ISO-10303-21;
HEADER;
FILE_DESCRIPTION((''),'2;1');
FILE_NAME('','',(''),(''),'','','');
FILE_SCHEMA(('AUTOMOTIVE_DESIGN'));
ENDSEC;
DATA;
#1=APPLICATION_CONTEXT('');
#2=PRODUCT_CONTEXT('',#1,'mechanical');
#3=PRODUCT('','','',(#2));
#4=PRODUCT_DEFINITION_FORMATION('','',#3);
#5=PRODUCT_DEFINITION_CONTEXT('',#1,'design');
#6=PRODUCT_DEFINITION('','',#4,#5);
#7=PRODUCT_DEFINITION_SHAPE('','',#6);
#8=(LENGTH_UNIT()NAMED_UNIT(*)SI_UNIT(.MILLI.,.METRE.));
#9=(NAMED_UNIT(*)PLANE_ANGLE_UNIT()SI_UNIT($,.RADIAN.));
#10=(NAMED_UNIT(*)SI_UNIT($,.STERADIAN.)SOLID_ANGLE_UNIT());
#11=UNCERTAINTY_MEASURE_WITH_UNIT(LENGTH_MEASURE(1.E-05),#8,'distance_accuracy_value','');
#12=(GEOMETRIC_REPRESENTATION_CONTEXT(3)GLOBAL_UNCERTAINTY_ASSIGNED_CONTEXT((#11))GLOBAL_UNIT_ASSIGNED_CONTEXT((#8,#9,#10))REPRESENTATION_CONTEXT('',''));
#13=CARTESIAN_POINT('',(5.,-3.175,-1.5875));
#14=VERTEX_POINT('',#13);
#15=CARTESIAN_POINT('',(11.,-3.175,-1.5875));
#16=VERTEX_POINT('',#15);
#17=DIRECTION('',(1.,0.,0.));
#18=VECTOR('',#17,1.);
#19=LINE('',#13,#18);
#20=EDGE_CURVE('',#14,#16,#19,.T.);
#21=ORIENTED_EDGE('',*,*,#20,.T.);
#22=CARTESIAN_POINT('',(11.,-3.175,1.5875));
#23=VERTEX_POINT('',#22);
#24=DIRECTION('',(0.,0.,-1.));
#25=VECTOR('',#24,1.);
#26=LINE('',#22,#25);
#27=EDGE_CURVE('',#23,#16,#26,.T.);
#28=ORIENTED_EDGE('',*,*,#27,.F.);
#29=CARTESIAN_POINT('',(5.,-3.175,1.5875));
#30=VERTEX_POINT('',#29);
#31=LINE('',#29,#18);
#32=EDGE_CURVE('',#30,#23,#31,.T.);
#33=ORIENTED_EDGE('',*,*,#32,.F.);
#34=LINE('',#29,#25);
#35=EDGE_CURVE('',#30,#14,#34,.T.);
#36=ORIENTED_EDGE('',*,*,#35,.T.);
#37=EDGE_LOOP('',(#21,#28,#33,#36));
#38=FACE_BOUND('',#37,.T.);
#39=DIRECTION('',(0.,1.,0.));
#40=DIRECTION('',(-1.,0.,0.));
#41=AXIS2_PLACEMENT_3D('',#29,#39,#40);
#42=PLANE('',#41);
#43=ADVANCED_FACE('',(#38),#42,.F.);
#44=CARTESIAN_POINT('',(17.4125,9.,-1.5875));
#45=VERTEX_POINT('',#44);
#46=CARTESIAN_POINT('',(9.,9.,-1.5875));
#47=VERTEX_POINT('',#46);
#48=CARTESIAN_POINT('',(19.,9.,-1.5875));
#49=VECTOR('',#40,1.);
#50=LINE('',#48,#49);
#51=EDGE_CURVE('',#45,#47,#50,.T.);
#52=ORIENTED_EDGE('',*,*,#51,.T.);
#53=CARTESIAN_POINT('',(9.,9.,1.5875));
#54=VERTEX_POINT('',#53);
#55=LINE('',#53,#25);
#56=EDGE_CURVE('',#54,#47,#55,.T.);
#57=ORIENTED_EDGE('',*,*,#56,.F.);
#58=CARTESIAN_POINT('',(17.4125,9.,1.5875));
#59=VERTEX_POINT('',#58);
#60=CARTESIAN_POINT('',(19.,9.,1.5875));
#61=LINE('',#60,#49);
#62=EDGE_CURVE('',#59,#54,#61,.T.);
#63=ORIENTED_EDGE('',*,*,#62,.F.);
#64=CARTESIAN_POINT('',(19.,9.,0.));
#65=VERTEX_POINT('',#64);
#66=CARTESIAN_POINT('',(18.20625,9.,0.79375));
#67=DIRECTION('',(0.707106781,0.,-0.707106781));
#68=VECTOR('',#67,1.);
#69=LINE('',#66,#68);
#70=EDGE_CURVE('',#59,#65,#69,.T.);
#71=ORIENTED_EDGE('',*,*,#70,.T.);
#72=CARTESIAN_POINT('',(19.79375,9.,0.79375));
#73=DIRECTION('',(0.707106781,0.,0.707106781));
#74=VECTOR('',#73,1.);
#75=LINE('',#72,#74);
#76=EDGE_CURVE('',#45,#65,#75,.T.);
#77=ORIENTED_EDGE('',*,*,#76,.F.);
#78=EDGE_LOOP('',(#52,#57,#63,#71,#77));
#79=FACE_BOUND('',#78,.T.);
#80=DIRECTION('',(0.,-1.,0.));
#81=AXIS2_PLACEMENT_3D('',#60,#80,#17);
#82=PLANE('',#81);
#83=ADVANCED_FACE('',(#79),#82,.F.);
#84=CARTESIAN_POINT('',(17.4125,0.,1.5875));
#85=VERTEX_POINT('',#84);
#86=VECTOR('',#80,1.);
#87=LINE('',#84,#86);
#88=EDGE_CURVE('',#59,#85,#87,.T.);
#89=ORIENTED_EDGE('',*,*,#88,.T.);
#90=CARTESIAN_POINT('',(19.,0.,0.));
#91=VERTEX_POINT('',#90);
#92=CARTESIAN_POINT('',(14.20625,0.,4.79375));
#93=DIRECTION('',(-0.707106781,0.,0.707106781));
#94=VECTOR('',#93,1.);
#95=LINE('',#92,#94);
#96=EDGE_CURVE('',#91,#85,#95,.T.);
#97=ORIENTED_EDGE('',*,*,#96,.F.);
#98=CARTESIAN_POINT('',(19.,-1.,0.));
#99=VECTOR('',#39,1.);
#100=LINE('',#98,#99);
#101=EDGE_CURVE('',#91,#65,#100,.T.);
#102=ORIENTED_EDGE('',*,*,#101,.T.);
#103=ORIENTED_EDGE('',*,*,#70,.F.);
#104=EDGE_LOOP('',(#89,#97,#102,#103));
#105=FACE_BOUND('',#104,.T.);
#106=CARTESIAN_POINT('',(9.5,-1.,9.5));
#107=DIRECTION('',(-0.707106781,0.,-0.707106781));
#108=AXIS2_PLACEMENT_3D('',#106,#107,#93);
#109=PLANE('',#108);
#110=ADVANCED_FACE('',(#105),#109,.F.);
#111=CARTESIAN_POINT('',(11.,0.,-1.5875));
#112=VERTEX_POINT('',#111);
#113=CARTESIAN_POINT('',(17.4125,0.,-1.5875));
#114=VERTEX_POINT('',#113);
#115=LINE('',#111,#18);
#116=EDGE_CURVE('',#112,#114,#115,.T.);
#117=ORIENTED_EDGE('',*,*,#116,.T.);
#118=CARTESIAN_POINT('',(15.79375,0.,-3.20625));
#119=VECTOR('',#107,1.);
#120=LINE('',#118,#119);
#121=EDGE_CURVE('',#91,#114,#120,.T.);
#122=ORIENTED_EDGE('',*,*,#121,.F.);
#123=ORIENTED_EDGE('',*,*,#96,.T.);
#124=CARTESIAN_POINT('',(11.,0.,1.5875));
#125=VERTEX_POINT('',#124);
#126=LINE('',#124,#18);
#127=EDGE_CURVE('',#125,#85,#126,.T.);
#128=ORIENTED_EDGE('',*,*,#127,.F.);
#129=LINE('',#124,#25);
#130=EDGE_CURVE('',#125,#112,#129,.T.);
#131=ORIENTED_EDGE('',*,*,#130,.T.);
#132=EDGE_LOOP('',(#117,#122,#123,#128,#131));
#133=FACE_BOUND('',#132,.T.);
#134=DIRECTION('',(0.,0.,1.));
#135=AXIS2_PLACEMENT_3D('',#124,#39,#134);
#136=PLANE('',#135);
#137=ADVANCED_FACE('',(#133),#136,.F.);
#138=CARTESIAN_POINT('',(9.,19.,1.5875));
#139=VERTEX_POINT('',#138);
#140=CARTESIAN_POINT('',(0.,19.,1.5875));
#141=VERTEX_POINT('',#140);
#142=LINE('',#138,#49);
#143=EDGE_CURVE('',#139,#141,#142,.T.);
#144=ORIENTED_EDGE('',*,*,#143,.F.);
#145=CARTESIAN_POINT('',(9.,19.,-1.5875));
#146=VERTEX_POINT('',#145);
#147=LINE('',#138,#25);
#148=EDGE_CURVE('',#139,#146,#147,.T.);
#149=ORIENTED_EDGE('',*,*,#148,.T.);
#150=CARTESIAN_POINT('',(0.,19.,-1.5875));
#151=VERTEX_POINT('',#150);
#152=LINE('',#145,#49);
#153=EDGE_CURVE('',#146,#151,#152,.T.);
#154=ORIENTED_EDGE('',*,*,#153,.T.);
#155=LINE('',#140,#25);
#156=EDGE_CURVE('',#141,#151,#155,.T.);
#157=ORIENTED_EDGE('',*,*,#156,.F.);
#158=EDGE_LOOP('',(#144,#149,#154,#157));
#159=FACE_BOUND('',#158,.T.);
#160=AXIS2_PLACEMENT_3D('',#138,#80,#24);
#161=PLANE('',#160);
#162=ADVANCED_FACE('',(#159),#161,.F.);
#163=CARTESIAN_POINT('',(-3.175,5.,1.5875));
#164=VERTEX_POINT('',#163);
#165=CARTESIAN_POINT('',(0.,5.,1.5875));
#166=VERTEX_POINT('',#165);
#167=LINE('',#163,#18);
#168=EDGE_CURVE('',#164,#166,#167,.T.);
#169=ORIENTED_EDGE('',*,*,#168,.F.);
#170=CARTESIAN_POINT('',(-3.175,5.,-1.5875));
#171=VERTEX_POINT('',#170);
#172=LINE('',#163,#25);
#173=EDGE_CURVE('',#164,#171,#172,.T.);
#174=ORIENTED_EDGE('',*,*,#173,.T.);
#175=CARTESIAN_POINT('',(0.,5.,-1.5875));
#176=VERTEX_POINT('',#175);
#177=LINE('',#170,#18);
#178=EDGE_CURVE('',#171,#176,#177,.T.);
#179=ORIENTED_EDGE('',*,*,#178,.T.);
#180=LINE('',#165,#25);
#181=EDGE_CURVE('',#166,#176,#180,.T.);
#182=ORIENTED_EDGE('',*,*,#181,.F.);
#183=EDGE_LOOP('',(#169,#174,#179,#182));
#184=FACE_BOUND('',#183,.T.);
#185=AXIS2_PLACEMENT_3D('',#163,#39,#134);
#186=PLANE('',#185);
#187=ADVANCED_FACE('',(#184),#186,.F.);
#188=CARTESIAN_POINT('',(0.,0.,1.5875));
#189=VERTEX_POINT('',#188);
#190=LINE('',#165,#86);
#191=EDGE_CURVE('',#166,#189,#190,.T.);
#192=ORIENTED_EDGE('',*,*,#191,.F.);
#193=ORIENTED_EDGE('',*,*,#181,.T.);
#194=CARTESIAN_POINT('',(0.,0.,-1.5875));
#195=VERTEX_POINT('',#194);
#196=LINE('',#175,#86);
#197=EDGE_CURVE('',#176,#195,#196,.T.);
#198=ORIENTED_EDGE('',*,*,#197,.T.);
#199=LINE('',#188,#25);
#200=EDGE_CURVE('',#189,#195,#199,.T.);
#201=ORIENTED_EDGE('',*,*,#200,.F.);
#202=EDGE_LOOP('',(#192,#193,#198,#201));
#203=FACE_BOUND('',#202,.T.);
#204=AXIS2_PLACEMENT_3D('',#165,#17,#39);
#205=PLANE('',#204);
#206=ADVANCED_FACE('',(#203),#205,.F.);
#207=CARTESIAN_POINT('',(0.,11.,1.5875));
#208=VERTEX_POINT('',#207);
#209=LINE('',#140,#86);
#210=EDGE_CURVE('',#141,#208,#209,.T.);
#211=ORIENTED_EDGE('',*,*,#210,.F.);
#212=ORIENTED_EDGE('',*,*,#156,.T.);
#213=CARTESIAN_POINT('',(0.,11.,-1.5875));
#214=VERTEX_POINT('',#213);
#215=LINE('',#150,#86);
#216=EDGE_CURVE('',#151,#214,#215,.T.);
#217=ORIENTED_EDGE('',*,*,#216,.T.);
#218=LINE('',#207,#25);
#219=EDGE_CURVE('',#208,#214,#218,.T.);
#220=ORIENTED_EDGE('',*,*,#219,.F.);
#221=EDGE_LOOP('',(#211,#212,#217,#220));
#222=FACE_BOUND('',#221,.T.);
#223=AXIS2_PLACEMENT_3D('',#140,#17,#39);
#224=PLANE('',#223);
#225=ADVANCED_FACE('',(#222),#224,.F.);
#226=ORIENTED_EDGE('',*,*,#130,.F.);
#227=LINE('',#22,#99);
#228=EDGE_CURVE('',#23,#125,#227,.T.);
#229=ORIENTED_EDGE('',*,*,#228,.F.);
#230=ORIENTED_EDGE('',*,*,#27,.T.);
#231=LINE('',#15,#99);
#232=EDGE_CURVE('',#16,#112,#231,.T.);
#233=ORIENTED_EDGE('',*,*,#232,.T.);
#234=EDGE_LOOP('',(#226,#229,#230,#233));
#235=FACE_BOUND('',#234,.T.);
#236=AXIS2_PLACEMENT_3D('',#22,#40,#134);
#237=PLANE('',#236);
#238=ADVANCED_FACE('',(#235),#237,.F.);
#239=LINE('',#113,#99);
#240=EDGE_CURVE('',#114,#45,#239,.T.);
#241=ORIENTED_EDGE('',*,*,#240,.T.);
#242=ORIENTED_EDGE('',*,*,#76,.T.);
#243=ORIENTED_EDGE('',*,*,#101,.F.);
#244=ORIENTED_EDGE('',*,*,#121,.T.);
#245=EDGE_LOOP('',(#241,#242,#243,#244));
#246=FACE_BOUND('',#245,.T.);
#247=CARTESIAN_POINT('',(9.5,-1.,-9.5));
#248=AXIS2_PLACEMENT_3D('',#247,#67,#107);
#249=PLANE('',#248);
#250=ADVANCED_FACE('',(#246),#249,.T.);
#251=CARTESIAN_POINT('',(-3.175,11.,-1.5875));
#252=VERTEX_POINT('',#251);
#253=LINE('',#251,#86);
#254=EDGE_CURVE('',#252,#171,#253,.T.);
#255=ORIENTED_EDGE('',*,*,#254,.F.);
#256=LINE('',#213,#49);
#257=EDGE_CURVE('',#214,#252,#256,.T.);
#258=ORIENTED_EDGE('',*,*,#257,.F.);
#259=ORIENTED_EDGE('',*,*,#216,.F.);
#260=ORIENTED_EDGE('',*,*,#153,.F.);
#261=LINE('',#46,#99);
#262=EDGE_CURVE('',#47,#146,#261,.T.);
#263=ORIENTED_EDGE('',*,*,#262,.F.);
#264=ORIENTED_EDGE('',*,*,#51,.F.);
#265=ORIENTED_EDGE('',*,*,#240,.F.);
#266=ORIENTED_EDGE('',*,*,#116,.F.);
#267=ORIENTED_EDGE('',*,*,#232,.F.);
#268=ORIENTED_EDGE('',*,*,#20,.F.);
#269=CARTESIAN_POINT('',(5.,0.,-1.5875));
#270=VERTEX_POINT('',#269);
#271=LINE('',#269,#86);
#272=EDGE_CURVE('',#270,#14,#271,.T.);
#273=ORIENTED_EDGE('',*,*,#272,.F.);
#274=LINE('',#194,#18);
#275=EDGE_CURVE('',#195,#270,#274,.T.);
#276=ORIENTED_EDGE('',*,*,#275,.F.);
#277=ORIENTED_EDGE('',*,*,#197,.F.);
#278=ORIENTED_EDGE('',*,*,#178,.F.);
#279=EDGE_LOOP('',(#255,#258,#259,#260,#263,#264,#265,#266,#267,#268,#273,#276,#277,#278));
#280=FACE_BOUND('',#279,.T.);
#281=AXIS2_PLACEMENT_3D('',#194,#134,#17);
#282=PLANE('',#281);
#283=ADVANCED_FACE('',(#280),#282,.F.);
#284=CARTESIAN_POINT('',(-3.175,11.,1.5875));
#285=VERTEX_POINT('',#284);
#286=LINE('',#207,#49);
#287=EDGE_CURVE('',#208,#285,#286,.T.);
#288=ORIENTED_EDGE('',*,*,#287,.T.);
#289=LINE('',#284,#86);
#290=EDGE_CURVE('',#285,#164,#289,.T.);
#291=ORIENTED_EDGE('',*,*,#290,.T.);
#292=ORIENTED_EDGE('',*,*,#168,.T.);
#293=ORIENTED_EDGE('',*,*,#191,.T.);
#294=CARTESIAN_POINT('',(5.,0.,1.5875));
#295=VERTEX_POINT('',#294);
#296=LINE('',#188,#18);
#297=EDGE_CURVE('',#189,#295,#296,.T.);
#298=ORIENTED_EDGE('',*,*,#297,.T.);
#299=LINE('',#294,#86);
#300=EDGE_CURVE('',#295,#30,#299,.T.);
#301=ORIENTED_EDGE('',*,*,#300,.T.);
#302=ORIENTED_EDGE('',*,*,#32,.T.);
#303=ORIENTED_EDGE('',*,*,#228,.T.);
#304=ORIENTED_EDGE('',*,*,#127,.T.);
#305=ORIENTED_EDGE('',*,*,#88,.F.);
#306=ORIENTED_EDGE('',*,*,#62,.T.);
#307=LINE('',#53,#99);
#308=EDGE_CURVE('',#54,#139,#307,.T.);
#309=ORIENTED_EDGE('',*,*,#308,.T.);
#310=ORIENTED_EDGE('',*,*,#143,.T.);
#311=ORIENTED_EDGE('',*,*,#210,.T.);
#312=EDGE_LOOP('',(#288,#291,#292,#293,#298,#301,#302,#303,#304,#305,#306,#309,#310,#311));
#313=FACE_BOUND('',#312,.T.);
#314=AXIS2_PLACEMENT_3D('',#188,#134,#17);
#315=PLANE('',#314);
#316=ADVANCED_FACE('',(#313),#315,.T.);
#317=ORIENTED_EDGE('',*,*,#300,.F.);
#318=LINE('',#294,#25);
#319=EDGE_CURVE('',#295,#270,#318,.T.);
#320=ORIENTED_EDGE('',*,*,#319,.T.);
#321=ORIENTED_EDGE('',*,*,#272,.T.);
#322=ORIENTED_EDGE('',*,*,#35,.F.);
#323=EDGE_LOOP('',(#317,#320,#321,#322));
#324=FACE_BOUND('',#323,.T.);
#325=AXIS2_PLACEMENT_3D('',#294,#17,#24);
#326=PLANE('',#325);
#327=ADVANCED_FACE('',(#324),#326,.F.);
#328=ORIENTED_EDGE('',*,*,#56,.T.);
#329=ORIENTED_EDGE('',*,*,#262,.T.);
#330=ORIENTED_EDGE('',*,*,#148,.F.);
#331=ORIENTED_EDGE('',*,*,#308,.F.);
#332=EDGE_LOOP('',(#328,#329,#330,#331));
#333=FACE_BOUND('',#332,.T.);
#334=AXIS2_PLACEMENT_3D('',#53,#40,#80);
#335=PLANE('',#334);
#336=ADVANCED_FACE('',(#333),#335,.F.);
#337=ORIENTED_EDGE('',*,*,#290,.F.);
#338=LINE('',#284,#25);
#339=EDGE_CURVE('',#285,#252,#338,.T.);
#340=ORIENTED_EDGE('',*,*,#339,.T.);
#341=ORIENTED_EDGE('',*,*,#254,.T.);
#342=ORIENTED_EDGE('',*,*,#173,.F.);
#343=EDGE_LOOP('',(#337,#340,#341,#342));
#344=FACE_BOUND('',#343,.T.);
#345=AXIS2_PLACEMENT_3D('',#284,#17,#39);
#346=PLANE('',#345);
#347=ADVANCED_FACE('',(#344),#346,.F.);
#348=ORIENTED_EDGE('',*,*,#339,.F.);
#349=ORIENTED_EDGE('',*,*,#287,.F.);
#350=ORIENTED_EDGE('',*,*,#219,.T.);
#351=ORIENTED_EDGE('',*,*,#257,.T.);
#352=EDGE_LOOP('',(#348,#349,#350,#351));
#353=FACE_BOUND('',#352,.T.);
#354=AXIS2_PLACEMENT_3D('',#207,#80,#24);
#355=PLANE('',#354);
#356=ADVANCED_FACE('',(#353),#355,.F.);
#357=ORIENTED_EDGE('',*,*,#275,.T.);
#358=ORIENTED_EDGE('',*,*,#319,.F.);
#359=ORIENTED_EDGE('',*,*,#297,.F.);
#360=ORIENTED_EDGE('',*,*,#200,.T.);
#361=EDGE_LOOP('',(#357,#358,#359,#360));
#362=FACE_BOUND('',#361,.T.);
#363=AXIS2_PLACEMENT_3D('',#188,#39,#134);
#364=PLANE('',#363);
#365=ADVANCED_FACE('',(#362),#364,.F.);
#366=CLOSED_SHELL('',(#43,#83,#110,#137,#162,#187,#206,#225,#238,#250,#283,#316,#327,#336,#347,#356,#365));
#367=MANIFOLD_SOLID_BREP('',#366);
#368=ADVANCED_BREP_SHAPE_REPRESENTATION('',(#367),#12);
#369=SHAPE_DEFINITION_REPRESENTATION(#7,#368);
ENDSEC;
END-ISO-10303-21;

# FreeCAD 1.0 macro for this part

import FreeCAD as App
import Part
import Sketcher
from FreeCAD import Vector

doc = App.newDocument("Part")
body = doc.addObject("PartDesign::Body", "Body")

sketch1 = body.newObject("Sketcher::SketchObject", "Sketch")
sketch1.AttachmentSupport = (doc.getObject("XY_Plane"), [""])
sketch1.MapMode = "FlatFace"
sketch1.addGeometry(Part.LineSegment(Vector(0, 0, 0), Vector(5, 0, 0)), False)
sketch1.addGeometry(Part.LineSegment(Vector(5, 0, 0), Vector(5, -3.175, 0)), False)
sketch1.addGeometry(Part.LineSegment(Vector(5, -3.175, 0), Vector(11, -3.175, 0)), False)
sketch1.addGeometry(Part.LineSegment(Vector(11, -3.175, 0), Vector(11, 0, 0)), False)
sketch1.addGeometry(Part.LineSegment(Vector(11, 0, 0), Vector(19, 0, 0)), False)
sketch1.addGeometry(Part.LineSegment(Vector(19, 0, 0), Vector(19, 9, 0)), False)
sketch1.addGeometry(Part.LineSegment(Vector(19, 9, 0), Vector(9, 9, 0)), False)
sketch1.addGeometry(Part.LineSegment(Vector(9, 9, 0), Vector(9, 19, 0)), False)
sketch1.addGeometry(Part.LineSegment(Vector(9, 19, 0), Vector(0, 19, 0)), False)
sketch1.addGeometry(Part.LineSegment(Vector(0, 19, 0), Vector(0, 11, 0)), False)
sketch1.addGeometry(Part.LineSegment(Vector(0, 11, 0), Vector(-3.175, 11, 0)), False)
sketch1.addGeometry(Part.LineSegment(Vector(-3.175, 11, 0), Vector(-3.175, 5, 0)), False)
sketch1.addGeometry(Part.LineSegment(Vector(-3.175, 5, 0), Vector(0, 5, 0)), False)
sketch1.addGeometry(Part.LineSegment(Vector(0, 5, 0), Vector(0, 0, 0)), False)
sketch1.addConstraint(Sketcher.Constraint("Coincident", 0, 2, 1, 1))
sketch1.addConstraint(Sketcher.Constraint("Coincident", 1, 2, 2, 1))
sketch1.addConstraint(Sketcher.Constraint("Coincident", 2, 2, 3, 1))
sketch1.addConstraint(Sketcher.Constraint("Coincident", 3, 2, 4, 1))
sketch1.addConstraint(Sketcher.Constraint("Coincident", 4, 2, 5, 1))
sketch1.addConstraint(Sketcher.Constraint("Coincident", 5, 2, 6, 1))
sketch1.addConstraint(Sketcher.Constraint("Coincident", 6, 2, 7, 1))
sketch1.addConstraint(Sketcher.Constraint("Coincident", 7, 2, 8, 1))
sketch1.addConstraint(Sketcher.Constraint("Coincident", 8, 2, 9, 1))
sketch1.addConstraint(Sketcher.Constraint("Coincident", 9, 2, 10, 1))
sketch1.addConstraint(Sketcher.Constraint("Coincident", 10, 2, 11, 1))
sketch1.addConstraint(Sketcher.Constraint("Coincident", 11, 2, 12, 1))
sketch1.addConstraint(Sketcher.Constraint("Coincident", 12, 2, 13, 1))
sketch1.addConstraint(Sketcher.Constraint("Coincident", 13, 2, 0, 1))
sketch1.addConstraint(Sketcher.Constraint("Horizontal", 0))
sketch1.addConstraint(Sketcher.Constraint("Vertical", 1))
sketch1.addConstraint(Sketcher.Constraint("Horizontal", 2))
sketch1.addConstraint(Sketcher.Constraint("Vertical", 3))
sketch1.addConstraint(Sketcher.Constraint("Horizontal", 4))
sketch1.addConstraint(Sketcher.Constraint("Vertical", 5))
sketch1.addConstraint(Sketcher.Constraint("Horizontal", 6))
sketch1.addConstraint(Sketcher.Constraint("Vertical", 7))
sketch1.addConstraint(Sketcher.Constraint("Horizontal", 8))
sketch1.addConstraint(Sketcher.Constraint("Vertical", 9))
sketch1.addConstraint(Sketcher.Constraint("Horizontal", 10))
sketch1.addConstraint(Sketcher.Constraint("Vertical", 11))
sketch1.addConstraint(Sketcher.Constraint("Horizontal", 12))
sketch1.addConstraint(Sketcher.Constraint("Vertical", 13))
sketch1.addConstraint(Sketcher.Constraint("Coincident", 13, 2, -1, 1))
sketch1.addConstraint(Sketcher.Constraint("PointOnObject", 3, 2, -1))
sketch1.addConstraint(Sketcher.Constraint("PointOnObject", 8, 2, -2))
sketch1.addConstraint(Sketcher.Constraint("Equal", 12, 1))
sketch1.addConstraint(Sketcher.Constraint("Equal", 8, 5))
sketch1.addConstraint(Sketcher.Constraint("Equal", 6, 7))
sketch1.addConstraint(Sketcher.Constraint("Equal", 4, 9))
sketch1.addConstraint(Sketcher.Constraint("Equal", 2, 11))
sketch1.addConstraint(Sketcher.Constraint("DistanceX", 0, 1, 0, 2, 5.0))
sketch1.addConstraint(Sketcher.Constraint("DistanceX", 2, 1, 2, 2, 6.0))
sketch1.addConstraint(Sketcher.Constraint("DistanceX", 4, 1, 4, 2, 8.0))
sketch1.addConstraint(Sketcher.Constraint("DistanceX", 6, 2, 6, 1, 10.0))
sketch1.addConstraint(Sketcher.Constraint("DistanceX", 10, 2, 10, 1, 3.175))
pad1 = body.newObject("PartDesign::Pad", "Pad")
pad1.Profile = sketch1
pad1.Length = 3.175
pad1.Midplane = True

sketch2 = body.newObject("Sketcher::SketchObject", "Sketch001")
sketch2.AttachmentSupport = (doc.getObject("XZ_Plane"), [""])
sketch2.MapMode = "FlatFace"
sketch2.AttachmentOffset = App.Placement(Vector(0, 0, -9), App.Rotation())
sketch2.addGeometry(Part.LineSegment(Vector(17.4125, 1.5875, 0), Vector(19.198367, 4.188525, 0)), False)
sketch2.addGeometry(Part.LineSegment(Vector(19.198367, 4.188525, 0), Vector(21.14549, 0, 0)), False)
sketch2.addGeometry(Part.LineSegment(Vector(21.14549, 0, 0), Vector(20.434146, -3.927656, 0)), False)
sketch2.addGeometry(Part.LineSegment(Vector(20.434146, -3.927656, 0), Vector(17.4125, -1.5875, 0)), False)
sketch2.addGeometry(Part.LineSegment(Vector(17.4125, -1.5875, 0), Vector(19, 0, 0)), False)
sketch2.addGeometry(Part.LineSegment(Vector(19, 0, 0), Vector(17.4125, 1.5875, 0)), False)
sketch2.addConstraint(Sketcher.Constraint("Coincident", 0, 2, 1, 1))
sketch2.addConstraint(Sketcher.Constraint("Coincident", 1, 2, 2, 1))
sketch2.addConstraint(Sketcher.Constraint("Coincident", 2, 2, 3, 1))
sketch2.addConstraint(Sketcher.Constraint("Coincident", 3, 2, 4, 1))
sketch2.addConstraint(Sketcher.Constraint("Coincident", 4, 2, 5, 1))
sketch2.addConstraint(Sketcher.Constraint("Coincident", 5, 2, 0, 1))
sketch2.addConstraint(Sketcher.Constraint("Symmetric", 3, 2, 5, 2, -1))
sketch2.addConstraint(Sketcher.Constraint("PointOnObject", 1, 2, -1))
sketch2.addConstraint(Sketcher.Constraint("PointOnObject", 4, 2, -1))
sketch2.addConstraint(Sketcher.Constraint("Perpendicular", 4, 5))
sketch2.addConstraint(Sketcher.Constraint("DistanceX", -1, 1, 4, 2, 19.0))
sketch2.addConstraint(Sketcher.Constraint("DistanceY", 3, 2, 5, 2, 3.175))
sketch2.addConstraint(Sketcher.Constraint("Distance", 0, 3.155099))
sketch2.addConstraint(Sketcher.Constraint("DistanceX", -1, 1, 1, 2, 21.14549))
sketch2.addConstraint(Sketcher.Constraint("DistanceX", 0, 2, 2, 2, 1.235778))
sketch2.addConstraint(Sketcher.Constraint("DistanceY", 2, 2, 0, 2, 8.116181))
sketch2.addConstraint(Sketcher.Constraint("Distance", 1, 4.618986))
pocket1 = body.newObject("PartDesign::Pocket", "Pocket")
pocket1.Profile = sketch2
pocket1.Length = 20
pocket1.Midplane = True

doc.recompute()
